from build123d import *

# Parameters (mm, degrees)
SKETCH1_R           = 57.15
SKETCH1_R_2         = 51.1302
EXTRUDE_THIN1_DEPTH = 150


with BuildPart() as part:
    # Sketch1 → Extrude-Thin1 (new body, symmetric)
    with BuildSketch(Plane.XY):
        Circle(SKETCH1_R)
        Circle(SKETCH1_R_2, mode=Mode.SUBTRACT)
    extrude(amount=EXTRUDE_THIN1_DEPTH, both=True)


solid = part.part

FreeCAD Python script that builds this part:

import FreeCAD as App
import Part
import Sketcher

V = App.Vector
Q = App.Units.Quantity

doc = App.newDocument("Part")
body = doc.addObject("PartDesign::Body", "Body")

# Sketch on XY plane
sketch1 = doc.addObject("Sketcher::SketchObject", "Sketch")
body.addObject(sketch1)
sketch1.AttachmentSupport = (doc.XY_Plane, [""])
sketch1.MapMode = "FlatFace"
sketch1.addGeometry([
    Part.Circle(V(0, 0, 0), V(0, 0, 1), 57),
    Part.Circle(V(0, 0, 0), V(0, 0, 1), 51),
], False)
sketch1.addConstraint([
    Sketcher.Constraint("Coincident", 0, 3, -1, 1),
    Sketcher.Constraint("Coincident", 1, 3, -1, 1),
    Sketcher.Constraint("Diameter", 0, Q("4.5 in")),
    Sketcher.Constraint("Diameter", 1, Q("4.026 in")),
])
pad1 = doc.addObject("PartDesign::Pad", "Pad")
body.addObject(pad1)
pad1.Profile = sketch1
pad1.Length = 300
pad1.Midplane = True

doc.recompute()
